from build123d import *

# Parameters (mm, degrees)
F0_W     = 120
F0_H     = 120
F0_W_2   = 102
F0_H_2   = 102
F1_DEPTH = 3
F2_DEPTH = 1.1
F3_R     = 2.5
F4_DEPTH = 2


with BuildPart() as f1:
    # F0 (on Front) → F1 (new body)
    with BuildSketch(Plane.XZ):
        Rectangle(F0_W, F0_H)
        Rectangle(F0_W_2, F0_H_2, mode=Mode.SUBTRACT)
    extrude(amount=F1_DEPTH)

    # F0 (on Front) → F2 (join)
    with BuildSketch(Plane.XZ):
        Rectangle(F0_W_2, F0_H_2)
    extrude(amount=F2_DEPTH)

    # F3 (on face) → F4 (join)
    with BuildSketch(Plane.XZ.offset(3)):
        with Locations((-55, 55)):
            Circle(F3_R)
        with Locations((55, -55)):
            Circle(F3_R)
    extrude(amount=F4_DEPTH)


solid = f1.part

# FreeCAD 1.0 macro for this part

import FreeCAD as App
import Part
import Sketcher


def add_polygon(sketch, points):
    """Adds a closed chain of lines whose ends are joined by coincident constraints."""
    first, n = sketch.GeometryCount, len(points)
    for a, b in zip(points, points[1:] + points[:1]):
        sketch.addGeometry(Part.LineSegment(App.Vector(*a, 0), App.Vector(*b, 0)), False)
    for i in range(n):
        sketch.addConstraint(Sketcher.Constraint("Coincident", first + i, 2, first + (i + 1) % n, 1))

doc = App.newDocument("Part")
params = doc.addObject("Spreadsheet::Sheet", "Params")
for row, (alias, value) in enumerate([
    ("sketch1_width", "120 mm"),
    ("sketch1_width2", "102 mm"),
    ("pad1_length", "3 mm"),
    ("sketch2_width", "102 mm"),
    ("pad2_length", "1.1 mm"),
    ("sketch3_diameter", "5 mm"),
    ("pad3_length", "2 mm"),
], start=1):
    params.set(f"A{row}", alias)
    params.set(f"B{row}", "=" + value)
    params.setAlias(f"B{row}", alias)

body = doc.addObject("PartDesign::Body", "Body")

# Sketch on XZ plane
sketch1 = body.newObject("Sketcher::SketchObject", "Sketch")
sketch1.AttachmentSupport = (doc.getObject("XZ_Plane"), [""])
sketch1.MapMode = "FlatFace"
add_polygon(sketch1, [(-60, 60), (-60, -60), (60, -60), (60, 60)])  # lines 0-3
add_polygon(sketch1, [(51, -51), (-51, -51), (-51, 51), (51, 51)])  # lines 4-7
sketch1.addConstraint(Sketcher.Constraint("Vertical", 0))
sketch1.addConstraint(Sketcher.Constraint("Horizontal", 1))
sketch1.addConstraint(Sketcher.Constraint("Vertical", 2))
sketch1.addConstraint(Sketcher.Constraint("Horizontal", 3))
sketch1.addConstraint(Sketcher.Constraint("Horizontal", 4))
sketch1.addConstraint(Sketcher.Constraint("Vertical", 5))
sketch1.addConstraint(Sketcher.Constraint("Horizontal", 6))
sketch1.addConstraint(Sketcher.Constraint("Vertical", 7))
sketch1.addConstraint(Sketcher.Constraint("Symmetric", 0, 2, 2, 2, -1, 1))
sketch1.addConstraint(Sketcher.Constraint("Symmetric", 4, 2, 6, 2, -1, 1))
sketch1.addConstraint(Sketcher.Constraint("Equal", 3, 0))
sketch1.addConstraint(Sketcher.Constraint("Equal", 6, 5))
sketch1.addConstraint(Sketcher.Constraint("DistanceX", 1, 1, 1, 2, 120.0))
sketch1.addConstraint(Sketcher.Constraint("DistanceX", 4, 2, 4, 1, 102.0))
sketch1.setExpression("Constraints[20]", "Params.sketch1_width")
sketch1.setExpression("Constraints[21]", "Params.sketch1_width2")
pad1 = body.newObject("PartDesign::Pad", "Pad")
pad1.Profile = sketch1
pad1.setExpression("Length", "Params.pad1_length")

# Sketch on XZ plane
sketch2 = body.newObject("Sketcher::SketchObject", "Sketch001")
sketch2.AttachmentSupport = (doc.getObject("XZ_Plane"), [""])
sketch2.MapMode = "FlatFace"
add_polygon(sketch2, [(-51, 51), (-51, -51), (51, -51), (51, 51)])  # lines 0-3
sketch2.addConstraint(Sketcher.Constraint("Vertical", 0))
sketch2.addConstraint(Sketcher.Constraint("Horizontal", 1))
sketch2.addConstraint(Sketcher.Constraint("Vertical", 2))
sketch2.addConstraint(Sketcher.Constraint("Horizontal", 3))
sketch2.addConstraint(Sketcher.Constraint("Symmetric", 0, 2, 2, 2, -1, 1))
sketch2.addConstraint(Sketcher.Constraint("Equal", 3, 0))
sketch2.addConstraint(Sketcher.Constraint("DistanceX", 1, 1, 1, 2, 102.0))
sketch2.setExpression("Constraints[10]", "Params.sketch2_width")
pad2 = body.newObject("PartDesign::Pad", "Pad001")
pad2.Profile = sketch2
pad2.setExpression("Length", "Params.pad2_length")

# Sketch on XZ plane
sketch3 = body.newObject("Sketcher::SketchObject", "Sketch002")
sketch3.AttachmentSupport = (doc.getObject("XZ_Plane"), [""])
sketch3.MapMode = "FlatFace"
sketch3.AttachmentOffset = App.Placement(App.Vector(0, 0, 3), App.Rotation())
sketch3.addGeometry(Part.Circle(App.Vector(-55, 55, 0), App.Vector(0, 0, 1), 2.5), False)
sketch3.addGeometry(Part.Circle(App.Vector(55, -55, 0), App.Vector(0, 0, 1), 2.5), False)
sketch3.addConstraint(Sketcher.Constraint("Equal", 0, 1))
sketch3.addConstraint(Sketcher.Constraint("Symmetric", 0, 3, 1, 3, -1, 1))
sketch3.addConstraint(Sketcher.Constraint("Diameter", 0, 5.0))
sketch3.addConstraint(Sketcher.Constraint("DistanceX", 0, 3, -1, 1, 55.0))
sketch3.addConstraint(Sketcher.Constraint("DistanceY", -1, 1, 0, 3, 55.0))
sketch3.setExpression("Constraints[2]", "Params.sketch3_diameter")
pad3 = body.newObject("PartDesign::Pad", "Pad002")
pad3.Profile = sketch3
pad3.setExpression("Length", "Params.pad3_length")

doc.recompute()
